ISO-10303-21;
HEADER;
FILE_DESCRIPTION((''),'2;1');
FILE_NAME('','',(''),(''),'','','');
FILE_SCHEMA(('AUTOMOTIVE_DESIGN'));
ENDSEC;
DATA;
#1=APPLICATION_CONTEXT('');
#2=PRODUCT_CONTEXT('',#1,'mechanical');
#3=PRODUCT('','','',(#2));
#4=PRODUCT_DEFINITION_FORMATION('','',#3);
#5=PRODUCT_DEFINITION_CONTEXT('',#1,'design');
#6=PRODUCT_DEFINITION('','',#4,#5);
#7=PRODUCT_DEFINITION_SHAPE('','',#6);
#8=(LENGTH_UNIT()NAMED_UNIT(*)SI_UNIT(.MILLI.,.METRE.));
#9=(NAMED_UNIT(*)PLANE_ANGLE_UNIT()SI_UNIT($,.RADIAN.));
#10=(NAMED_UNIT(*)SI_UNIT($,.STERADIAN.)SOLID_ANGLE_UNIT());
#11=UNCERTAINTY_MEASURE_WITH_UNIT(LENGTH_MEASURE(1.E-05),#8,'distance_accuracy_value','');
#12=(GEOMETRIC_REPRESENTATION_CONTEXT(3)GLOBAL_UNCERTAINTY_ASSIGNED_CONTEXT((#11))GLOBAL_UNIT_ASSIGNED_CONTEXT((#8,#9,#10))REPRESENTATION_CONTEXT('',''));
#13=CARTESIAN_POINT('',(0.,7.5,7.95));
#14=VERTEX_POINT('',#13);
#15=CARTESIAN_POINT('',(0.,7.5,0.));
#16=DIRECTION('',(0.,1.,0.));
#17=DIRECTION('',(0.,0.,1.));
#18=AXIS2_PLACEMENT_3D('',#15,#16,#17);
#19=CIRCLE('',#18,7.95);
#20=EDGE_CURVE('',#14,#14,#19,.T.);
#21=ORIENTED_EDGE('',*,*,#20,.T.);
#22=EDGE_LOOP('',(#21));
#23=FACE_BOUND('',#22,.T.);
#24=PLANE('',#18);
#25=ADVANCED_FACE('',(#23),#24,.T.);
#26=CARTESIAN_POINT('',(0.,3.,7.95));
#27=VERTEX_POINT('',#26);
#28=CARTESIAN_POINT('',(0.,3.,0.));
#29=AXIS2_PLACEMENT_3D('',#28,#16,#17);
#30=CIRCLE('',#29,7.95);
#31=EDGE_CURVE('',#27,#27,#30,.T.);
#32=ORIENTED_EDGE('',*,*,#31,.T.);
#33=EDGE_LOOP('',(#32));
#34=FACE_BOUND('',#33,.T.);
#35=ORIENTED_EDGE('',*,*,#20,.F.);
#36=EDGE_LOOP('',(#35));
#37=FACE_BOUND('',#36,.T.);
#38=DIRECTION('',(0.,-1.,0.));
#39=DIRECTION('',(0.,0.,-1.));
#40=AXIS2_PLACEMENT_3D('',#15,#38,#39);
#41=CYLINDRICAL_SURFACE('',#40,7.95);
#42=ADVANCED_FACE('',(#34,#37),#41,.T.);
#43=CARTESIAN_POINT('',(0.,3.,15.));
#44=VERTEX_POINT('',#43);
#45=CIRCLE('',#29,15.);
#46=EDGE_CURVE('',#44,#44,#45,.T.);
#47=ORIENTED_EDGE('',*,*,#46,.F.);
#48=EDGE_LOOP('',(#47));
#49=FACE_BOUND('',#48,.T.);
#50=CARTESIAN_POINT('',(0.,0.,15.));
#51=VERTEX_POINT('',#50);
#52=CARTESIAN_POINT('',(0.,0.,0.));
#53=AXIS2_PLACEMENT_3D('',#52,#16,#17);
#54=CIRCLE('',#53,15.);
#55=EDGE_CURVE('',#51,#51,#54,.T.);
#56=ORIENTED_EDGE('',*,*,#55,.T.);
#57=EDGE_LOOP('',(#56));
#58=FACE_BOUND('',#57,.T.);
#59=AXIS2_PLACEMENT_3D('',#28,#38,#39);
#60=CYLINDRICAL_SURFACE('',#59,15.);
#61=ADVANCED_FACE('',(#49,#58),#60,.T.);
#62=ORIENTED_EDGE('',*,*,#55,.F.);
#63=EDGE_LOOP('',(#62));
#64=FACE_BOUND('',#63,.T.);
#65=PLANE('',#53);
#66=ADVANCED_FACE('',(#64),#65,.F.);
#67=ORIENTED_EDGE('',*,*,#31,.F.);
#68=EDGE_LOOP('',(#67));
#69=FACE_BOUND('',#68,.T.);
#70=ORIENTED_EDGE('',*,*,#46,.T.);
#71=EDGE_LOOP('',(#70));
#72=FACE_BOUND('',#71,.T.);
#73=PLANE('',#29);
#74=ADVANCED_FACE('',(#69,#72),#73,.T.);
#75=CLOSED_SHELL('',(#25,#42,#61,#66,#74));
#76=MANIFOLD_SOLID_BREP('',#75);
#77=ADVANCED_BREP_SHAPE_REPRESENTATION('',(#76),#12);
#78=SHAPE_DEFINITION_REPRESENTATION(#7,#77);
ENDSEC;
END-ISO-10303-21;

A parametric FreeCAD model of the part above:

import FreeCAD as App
import Part
import Sketcher
Q = App.Units.Quantity

doc = App.newDocument("Part")
body = doc.addObject("PartDesign::Body", "Body")

# Sketch on XZ plane
sketch1 = body.newObject("Sketcher::SketchObject", "Sketch")
sketch1.AttachmentSupport = (doc.getObject("XZ_Plane"), [""])
sketch1.MapMode = "FlatFace"
sketch1.addGeometry(Part.Circle(App.Vector(0, 0, 0), App.Vector(0, 0, 1), 15), False)
sketch1.addConstraint([
    Sketcher.Constraint("Coincident", 0, 3, -1, 1),
    Sketcher.Constraint("Diameter", 0, Q("30 mm")),
])
pad1 = body.newObject("PartDesign::Pad", "Pad")
pad1.Profile = sketch1
pad1.Length = 3
pad1.Reversed = True

# Sketch on XZ plane
sketch2 = body.newObject("Sketcher::SketchObject", "Sketch001")
sketch2.AttachmentSupport = (doc.getObject("XZ_Plane"), [""])
sketch2.MapMode = "FlatFace"
sketch2.AttachmentOffset = App.Placement(App.Vector(0, 0, -3), App.Rotation())
sketch2.addGeometry(Part.Circle(App.Vector(0, 0, 0), App.Vector(0, 0, 1), 8), False)
sketch2.addConstraint([
    Sketcher.Constraint("Coincident", 0, 3, -1, 1),
    Sketcher.Constraint("Diameter", 0, Q("15.9 mm")),
])
pad2 = body.newObject("PartDesign::Pad", "Pad001")
pad2.Profile = sketch2
pad2.Length = 4.5
pad2.Reversed = True

doc.recompute()
